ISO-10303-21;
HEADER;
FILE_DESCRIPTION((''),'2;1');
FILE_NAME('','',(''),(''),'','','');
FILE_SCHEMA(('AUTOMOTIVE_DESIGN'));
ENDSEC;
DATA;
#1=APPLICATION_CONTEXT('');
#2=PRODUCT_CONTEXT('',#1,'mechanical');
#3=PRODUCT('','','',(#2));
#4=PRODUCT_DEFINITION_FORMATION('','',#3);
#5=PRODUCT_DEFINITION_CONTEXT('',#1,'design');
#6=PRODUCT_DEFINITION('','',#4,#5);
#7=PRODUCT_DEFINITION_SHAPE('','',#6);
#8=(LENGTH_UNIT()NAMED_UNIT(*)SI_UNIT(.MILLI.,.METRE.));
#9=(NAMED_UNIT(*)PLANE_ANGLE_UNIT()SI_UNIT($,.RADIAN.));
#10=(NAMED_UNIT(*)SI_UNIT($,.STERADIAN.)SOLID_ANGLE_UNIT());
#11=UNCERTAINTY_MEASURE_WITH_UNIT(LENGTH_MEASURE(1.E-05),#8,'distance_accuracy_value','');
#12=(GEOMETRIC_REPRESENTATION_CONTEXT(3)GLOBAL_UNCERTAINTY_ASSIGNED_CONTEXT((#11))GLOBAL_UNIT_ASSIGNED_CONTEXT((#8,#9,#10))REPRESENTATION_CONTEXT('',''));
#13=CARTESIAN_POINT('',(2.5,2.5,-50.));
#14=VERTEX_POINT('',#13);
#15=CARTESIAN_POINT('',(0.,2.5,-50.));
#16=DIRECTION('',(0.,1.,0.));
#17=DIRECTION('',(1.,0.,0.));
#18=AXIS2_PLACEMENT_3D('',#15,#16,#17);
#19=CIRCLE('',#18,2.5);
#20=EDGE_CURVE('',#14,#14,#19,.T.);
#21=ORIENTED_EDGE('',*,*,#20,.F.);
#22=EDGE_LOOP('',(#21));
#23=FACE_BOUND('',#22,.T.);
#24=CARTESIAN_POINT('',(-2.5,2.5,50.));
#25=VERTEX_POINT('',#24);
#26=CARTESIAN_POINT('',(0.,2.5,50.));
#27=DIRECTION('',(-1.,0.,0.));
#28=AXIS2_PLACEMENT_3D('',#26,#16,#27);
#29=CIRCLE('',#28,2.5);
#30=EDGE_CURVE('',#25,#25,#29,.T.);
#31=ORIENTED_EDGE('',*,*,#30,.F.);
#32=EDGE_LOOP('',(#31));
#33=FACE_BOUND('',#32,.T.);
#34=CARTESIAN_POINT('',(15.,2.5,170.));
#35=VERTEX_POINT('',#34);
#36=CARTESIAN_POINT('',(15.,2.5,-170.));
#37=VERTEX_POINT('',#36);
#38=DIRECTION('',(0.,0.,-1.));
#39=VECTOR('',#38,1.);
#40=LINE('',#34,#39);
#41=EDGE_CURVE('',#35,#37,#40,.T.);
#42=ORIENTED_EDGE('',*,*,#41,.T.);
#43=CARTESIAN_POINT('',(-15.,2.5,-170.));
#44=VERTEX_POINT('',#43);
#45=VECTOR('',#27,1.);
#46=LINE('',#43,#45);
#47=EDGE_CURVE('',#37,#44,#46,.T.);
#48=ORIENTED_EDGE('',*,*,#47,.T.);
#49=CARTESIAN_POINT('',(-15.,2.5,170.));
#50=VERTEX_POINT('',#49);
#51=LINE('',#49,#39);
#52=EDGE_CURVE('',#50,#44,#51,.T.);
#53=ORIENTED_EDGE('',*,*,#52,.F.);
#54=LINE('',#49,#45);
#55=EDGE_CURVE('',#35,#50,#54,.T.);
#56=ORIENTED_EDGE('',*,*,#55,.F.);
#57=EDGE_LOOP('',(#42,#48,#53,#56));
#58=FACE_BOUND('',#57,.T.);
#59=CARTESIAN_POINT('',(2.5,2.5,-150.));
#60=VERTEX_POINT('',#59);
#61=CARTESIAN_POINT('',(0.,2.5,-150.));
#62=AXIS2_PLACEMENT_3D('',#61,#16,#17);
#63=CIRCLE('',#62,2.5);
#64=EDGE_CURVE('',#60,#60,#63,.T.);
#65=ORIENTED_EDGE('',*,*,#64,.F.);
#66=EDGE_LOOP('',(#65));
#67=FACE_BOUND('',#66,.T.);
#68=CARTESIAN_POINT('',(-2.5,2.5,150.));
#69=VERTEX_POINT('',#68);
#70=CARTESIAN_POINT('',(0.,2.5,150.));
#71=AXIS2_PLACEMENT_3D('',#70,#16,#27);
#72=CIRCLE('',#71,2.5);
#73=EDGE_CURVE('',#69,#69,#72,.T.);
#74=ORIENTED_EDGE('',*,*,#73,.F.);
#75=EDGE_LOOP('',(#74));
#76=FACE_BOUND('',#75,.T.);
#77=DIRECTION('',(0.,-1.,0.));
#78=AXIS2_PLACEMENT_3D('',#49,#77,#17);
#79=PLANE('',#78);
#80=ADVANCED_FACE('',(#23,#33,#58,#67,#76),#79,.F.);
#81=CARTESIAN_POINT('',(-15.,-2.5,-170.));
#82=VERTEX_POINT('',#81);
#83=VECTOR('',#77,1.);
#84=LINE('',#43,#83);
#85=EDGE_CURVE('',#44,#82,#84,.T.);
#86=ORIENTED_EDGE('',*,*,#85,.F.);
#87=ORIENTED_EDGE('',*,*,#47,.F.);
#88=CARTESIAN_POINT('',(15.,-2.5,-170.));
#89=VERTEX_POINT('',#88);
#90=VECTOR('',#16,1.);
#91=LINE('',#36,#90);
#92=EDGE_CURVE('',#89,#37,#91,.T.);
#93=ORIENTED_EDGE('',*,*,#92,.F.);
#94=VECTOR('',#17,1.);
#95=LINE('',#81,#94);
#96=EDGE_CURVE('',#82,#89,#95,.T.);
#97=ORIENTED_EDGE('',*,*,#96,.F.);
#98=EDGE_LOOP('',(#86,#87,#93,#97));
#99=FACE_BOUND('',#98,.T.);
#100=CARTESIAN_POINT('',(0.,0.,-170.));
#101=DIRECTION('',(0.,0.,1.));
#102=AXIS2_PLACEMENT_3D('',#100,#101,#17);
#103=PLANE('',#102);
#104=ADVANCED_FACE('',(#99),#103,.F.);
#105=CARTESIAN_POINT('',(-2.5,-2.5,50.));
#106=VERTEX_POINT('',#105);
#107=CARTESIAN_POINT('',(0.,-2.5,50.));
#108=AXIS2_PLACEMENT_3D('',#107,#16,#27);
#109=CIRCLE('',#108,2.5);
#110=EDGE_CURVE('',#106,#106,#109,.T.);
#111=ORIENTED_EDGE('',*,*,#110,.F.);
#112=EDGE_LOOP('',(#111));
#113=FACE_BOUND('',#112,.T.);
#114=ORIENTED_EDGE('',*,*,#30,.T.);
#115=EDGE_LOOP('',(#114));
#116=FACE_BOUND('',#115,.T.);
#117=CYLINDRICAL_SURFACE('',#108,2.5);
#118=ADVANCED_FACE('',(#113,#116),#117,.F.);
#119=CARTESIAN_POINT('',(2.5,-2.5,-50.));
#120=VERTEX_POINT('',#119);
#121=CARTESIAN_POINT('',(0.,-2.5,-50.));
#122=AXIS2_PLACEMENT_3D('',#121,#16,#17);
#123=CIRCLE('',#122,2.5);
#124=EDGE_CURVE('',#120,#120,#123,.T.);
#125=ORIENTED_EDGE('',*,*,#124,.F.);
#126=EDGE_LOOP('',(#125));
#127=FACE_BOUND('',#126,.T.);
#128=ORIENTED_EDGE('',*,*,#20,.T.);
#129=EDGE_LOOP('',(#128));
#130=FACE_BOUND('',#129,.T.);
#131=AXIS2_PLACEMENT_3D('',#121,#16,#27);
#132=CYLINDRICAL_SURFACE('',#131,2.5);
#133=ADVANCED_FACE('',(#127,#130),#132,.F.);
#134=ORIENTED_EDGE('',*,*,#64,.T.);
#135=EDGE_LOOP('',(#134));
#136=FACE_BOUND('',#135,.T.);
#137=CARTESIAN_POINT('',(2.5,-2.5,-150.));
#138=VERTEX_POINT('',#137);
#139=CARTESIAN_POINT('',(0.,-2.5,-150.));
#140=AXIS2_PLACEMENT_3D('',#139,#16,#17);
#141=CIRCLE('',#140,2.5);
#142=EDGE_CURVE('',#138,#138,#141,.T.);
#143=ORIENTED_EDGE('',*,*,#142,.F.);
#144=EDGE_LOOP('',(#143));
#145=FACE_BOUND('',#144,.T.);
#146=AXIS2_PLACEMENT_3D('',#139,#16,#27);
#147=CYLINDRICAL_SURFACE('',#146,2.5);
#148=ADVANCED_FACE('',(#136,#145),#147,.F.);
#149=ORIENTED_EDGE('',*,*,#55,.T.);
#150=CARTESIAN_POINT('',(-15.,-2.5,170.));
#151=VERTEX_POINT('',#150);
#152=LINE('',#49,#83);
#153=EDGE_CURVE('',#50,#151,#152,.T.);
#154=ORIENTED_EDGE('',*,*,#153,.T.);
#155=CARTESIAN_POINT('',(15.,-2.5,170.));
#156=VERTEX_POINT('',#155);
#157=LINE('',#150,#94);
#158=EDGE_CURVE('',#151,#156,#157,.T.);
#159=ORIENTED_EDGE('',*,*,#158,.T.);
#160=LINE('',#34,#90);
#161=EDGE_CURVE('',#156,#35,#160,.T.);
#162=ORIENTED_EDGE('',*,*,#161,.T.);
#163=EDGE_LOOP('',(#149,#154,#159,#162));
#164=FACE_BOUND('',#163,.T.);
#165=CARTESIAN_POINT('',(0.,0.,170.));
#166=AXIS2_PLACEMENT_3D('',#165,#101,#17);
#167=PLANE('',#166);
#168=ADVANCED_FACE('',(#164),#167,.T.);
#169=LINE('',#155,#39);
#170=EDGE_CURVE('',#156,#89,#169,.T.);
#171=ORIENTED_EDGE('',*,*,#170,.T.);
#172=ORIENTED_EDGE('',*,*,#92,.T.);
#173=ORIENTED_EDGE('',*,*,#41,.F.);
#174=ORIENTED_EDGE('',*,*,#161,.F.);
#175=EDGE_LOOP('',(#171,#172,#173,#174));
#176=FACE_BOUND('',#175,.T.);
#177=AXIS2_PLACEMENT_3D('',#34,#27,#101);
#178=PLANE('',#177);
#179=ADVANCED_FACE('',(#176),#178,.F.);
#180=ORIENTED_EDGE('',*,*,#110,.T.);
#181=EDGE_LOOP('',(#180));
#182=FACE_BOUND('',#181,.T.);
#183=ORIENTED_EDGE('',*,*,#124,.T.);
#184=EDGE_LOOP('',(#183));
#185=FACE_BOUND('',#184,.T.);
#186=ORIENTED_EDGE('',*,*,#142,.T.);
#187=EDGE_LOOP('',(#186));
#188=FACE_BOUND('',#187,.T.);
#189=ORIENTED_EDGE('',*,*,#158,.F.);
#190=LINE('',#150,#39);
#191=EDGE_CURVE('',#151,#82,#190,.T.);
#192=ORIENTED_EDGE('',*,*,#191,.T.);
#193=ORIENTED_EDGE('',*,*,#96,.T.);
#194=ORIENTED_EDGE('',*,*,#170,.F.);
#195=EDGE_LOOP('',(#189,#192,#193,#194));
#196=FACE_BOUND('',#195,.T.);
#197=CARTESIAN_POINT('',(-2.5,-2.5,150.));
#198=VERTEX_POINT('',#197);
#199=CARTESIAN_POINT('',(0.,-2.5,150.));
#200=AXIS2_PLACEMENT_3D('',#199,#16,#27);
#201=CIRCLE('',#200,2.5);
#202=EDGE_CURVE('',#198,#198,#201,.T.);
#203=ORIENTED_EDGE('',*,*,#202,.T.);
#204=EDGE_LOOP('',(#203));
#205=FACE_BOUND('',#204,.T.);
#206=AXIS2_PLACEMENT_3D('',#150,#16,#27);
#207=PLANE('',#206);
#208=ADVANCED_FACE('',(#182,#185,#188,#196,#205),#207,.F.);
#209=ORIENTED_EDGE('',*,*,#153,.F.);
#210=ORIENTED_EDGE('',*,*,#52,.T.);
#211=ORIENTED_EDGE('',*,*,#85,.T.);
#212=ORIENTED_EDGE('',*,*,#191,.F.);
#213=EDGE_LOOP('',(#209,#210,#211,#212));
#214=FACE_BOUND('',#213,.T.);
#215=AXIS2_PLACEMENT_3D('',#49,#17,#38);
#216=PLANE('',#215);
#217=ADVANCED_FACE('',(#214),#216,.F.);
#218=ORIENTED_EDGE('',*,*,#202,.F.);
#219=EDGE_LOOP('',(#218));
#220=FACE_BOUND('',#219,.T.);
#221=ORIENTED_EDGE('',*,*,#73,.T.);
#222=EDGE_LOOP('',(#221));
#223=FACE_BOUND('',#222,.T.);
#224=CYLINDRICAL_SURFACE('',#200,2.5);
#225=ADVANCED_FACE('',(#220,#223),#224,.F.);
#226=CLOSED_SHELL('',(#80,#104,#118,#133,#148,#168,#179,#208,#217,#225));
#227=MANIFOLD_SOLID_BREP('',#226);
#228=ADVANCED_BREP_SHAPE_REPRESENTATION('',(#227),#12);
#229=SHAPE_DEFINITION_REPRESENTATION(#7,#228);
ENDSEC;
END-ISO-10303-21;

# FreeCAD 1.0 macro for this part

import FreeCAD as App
import Part
import Sketcher
Q = App.Units.Quantity


def add_polygon(sketch, points):
    """Adds a closed chain of lines whose ends are joined by coincident constraints."""
    first, n = sketch.GeometryCount, len(points)
    for a, b in zip(points, points[1:] + points[:1]):
        sketch.addGeometry(Part.LineSegment(App.Vector(*a, 0), App.Vector(*b, 0)), False)
    for i in range(n):
        sketch.addConstraint(Sketcher.Constraint("Coincident", first + i, 2, first + (i + 1) % n, 1))

doc = App.newDocument("Part")
params = doc.addObject("Spreadsheet::Sheet", "Params")
for row, (alias, value) in enumerate([
    ("sketch1_width", "30 mm"),
    ("sketch1_height", "5 mm"),
    ("pad1_length", "340 mm"),
    ("sketch2_diameter", "5 mm"),
], start=1):
    params.set(f"A{row}", alias)
    params.set(f"B{row}", "=" + value)
    params.setAlias(f"B{row}", alias)

body = doc.addObject("PartDesign::Body", "Body")

# Sketch on XY plane
sketch1 = body.newObject("Sketcher::SketchObject", "Sketch")
sketch1.AttachmentSupport = (doc.getObject("XY_Plane"), [""])
sketch1.MapMode = "FlatFace"
add_polygon(sketch1, [(-15, 2), (-15, -2), (15, -2), (15, 2)])  # lines 0-3
sketch1.addConstraint([
    Sketcher.Constraint("Vertical", 0),
    Sketcher.Constraint("Horizontal", 1),
    Sketcher.Constraint("Vertical", 2),
    Sketcher.Constraint("Horizontal", 3),
    Sketcher.Constraint("Symmetric", 0, 2, 2, 2, -1, 1),
    Sketcher.Constraint("DistanceX", 1, 1, 1, 2, Q("30 mm")),
    Sketcher.Constraint("DistanceY", 0, 2, 0, 1, Q("5 mm")),
])
sketch1.setExpression("Constraints[9]", "Params.sketch1_width")
sketch1.setExpression("Constraints[10]", "Params.sketch1_height")
pad1 = body.newObject("PartDesign::Pad", "Pad")
pad1.Profile = sketch1
pad1.setExpression("Length", "Params.pad1_length")
pad1.Midplane = True

# Sketch on XZ plane
sketch2 = body.newObject("Sketcher::SketchObject", "Sketch001")
sketch2.AttachmentSupport = (doc.getObject("XZ_Plane"), [""])
sketch2.MapMode = "FlatFace"
sketch2.AttachmentOffset = App.Placement(App.Vector(0, 0, -2.5), App.Rotation())
sketch2.addGeometry([
    Part.Circle(App.Vector(0, 50, 0), App.Vector(0, 0, 1), 2.5),
    Part.Circle(App.Vector(0, 150, 0), App.Vector(0, 0, 1), 2.5),
    Part.Circle(App.Vector(0, -150, 0), App.Vector(0, 0, 1), 2.5),
    Part.Circle(App.Vector(0, -50, 0), App.Vector(0, 0, 1), 2.5),
], False)
sketch2.addConstraint([
    Sketcher.Constraint("Equal", 0, 1),
    Sketcher.Constraint("Equal", 1, 2),
    Sketcher.Constraint("Equal", 2, 3),
    Sketcher.Constraint("Symmetric", 1, 3, 2, 3, -1, 1),
    Sketcher.Constraint("Symmetric", 0, 3, 3, 3, -1, 1),
    Sketcher.Constraint("PointOnObject", 0, 3, -2),
    Sketcher.Constraint("PointOnObject", 1, 3, -2),
    Sketcher.Constraint("Diameter", 0, Q("5 mm")),
    Sketcher.Constraint("DistanceY", -1, 1, 0, 3, Q("50 mm")),
    Sketcher.Constraint("DistanceY", -1, 1, 1, 3, Q("150 mm")),
])
sketch2.setExpression("Constraints[7]", "Params.sketch2_diameter")
pocket1 = body.newObject("PartDesign::Pocket", "Pocket")
pocket1.Profile = sketch2
pocket1.Type = "ThroughAll"
pocket1.Reversed = True

doc.recompute()
